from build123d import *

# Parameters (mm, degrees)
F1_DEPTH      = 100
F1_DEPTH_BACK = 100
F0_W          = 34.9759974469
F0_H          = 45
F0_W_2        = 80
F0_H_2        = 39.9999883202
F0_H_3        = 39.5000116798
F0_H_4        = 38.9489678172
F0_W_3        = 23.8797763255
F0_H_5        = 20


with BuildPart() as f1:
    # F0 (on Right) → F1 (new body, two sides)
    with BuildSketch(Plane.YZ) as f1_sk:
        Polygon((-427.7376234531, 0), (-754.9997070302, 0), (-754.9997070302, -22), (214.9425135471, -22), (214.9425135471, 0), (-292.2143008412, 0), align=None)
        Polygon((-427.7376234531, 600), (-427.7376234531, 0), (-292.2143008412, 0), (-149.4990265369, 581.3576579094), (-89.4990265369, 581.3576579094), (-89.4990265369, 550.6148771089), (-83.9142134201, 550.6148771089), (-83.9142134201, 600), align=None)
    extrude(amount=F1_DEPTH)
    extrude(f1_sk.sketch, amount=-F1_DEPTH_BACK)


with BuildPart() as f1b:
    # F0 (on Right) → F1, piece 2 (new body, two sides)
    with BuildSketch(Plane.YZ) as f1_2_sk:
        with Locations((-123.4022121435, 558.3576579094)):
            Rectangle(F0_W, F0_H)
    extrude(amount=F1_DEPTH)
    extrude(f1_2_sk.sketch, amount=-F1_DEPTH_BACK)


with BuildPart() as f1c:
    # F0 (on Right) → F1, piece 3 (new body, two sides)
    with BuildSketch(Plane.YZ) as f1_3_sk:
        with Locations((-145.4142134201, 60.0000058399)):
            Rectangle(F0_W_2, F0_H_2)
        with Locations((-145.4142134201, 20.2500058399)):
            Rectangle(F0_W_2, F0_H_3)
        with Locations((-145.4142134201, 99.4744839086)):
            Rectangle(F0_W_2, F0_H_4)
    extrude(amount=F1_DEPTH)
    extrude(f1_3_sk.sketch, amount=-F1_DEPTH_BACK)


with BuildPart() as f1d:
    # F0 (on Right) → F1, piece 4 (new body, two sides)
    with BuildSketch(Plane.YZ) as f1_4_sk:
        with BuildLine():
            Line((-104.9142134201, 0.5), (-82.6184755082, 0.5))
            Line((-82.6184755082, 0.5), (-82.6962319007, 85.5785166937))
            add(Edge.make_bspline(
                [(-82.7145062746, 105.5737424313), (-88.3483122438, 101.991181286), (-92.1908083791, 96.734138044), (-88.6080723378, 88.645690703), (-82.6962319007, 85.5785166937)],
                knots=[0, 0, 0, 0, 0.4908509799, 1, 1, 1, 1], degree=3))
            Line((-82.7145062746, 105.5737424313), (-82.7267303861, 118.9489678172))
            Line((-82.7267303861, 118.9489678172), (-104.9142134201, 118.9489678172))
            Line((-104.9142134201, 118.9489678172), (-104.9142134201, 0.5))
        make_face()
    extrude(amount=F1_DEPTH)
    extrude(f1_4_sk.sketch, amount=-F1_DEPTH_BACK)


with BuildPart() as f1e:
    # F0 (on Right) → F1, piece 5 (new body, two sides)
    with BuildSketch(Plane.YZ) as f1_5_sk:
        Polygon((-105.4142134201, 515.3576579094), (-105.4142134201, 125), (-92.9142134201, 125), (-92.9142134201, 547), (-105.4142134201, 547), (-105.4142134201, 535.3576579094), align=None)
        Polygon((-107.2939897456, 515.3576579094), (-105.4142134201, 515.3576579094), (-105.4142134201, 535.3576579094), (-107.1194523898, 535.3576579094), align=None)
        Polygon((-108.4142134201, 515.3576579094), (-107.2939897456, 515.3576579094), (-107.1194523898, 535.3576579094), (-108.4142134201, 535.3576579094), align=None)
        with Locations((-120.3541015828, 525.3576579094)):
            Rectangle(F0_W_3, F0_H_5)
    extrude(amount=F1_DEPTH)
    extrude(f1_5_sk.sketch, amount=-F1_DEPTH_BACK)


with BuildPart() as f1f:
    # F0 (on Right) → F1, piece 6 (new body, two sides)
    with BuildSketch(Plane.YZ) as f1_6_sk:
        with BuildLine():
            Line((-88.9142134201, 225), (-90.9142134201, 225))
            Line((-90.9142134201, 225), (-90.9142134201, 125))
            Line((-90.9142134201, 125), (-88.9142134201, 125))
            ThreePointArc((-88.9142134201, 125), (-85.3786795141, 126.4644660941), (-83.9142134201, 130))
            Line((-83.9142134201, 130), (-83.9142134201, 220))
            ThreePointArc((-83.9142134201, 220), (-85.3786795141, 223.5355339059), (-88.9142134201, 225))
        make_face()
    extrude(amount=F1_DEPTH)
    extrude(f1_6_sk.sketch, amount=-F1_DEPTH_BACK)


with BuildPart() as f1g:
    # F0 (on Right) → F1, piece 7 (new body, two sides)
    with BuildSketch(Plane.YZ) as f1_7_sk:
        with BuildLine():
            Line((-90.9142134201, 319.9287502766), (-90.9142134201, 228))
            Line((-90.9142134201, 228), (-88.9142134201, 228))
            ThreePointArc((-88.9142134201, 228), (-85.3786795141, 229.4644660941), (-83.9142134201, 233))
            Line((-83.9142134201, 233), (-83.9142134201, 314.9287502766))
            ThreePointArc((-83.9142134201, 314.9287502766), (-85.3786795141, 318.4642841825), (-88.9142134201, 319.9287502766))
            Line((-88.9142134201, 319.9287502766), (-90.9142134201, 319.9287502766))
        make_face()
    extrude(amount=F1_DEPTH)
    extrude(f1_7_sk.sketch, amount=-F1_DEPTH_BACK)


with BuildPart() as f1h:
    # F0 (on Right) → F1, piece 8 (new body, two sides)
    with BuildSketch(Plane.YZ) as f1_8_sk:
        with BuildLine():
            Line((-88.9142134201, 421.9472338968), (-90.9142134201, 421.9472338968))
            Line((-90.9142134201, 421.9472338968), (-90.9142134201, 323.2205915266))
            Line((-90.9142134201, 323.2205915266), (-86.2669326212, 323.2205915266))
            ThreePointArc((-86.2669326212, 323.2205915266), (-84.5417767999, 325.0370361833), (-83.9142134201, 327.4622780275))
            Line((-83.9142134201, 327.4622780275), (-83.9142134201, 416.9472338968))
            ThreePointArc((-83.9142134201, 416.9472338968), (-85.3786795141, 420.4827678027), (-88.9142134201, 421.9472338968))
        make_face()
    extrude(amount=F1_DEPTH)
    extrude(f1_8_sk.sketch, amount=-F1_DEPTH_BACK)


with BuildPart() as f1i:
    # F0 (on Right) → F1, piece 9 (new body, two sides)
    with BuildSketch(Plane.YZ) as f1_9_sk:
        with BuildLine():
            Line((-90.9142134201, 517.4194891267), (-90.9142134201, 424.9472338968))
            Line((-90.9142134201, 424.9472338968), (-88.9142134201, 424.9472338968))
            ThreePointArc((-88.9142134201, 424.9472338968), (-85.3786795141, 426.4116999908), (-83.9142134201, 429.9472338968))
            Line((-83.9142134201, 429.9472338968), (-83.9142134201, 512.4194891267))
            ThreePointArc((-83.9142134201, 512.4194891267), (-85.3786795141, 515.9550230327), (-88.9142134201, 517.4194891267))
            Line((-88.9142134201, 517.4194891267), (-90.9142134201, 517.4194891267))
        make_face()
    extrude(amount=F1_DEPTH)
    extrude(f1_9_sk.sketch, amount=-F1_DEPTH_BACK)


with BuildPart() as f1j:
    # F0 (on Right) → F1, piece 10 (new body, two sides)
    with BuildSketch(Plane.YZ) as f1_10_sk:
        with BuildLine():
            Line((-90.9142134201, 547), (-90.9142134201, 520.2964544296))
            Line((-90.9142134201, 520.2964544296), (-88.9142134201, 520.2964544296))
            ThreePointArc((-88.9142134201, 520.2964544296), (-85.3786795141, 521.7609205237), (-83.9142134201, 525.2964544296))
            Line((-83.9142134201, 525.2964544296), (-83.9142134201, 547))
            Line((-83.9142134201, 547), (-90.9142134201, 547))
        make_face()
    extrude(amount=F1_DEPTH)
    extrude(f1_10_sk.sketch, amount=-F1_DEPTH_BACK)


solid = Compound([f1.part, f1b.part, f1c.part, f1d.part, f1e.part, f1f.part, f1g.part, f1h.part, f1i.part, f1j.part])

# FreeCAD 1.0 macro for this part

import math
import FreeCAD as App
import Part
import Sketcher
Q = App.Units.Quantity


def add_polygon(sketch, points):
    """Adds a closed chain of lines whose ends are joined by coincident constraints."""
    first, n = sketch.GeometryCount, len(points)
    for a, b in zip(points, points[1:] + points[:1]):
        sketch.addGeometry(Part.LineSegment(App.Vector(*a, 0), App.Vector(*b, 0)), False)
    for i in range(n):
        sketch.addConstraint(Sketcher.Constraint("Coincident", first + i, 2, first + (i + 1) % n, 1))

doc = App.newDocument("Part")
body = doc.addObject("PartDesign::Body", "Body")

# Sketch on YZ plane
sketch1 = doc.addObject("Sketcher::SketchObject", "Sketch")
body.addObject(sketch1)
sketch1.AttachmentSupport = (doc.YZ_Plane, [""])
sketch1.MapMode = "FlatFace"
add_polygon(sketch1, [(-755, 0), (-755, -22), (215, -22), (215, 0), (-292, 0), (-149, 581), (-89, 581), (-89, 551), (-84, 551), (-84, 600), (-428, 600), (-428, 0)])  # lines 0-11
sketch1.addConstraint(Sketcher.Constraint("Vertical", 0))
sketch1.addConstraint(Sketcher.Constraint("Horizontal", 1))
sketch1.addConstraint(Sketcher.Constraint("Vertical", 2))
sketch1.addConstraint(Sketcher.Constraint("Horizontal", 3))
sketch1.addConstraint(Sketcher.Constraint("Horizontal", 5))
sketch1.addConstraint(Sketcher.Constraint("Vertical", 6))
sketch1.addConstraint(Sketcher.Constraint("Horizontal", 7))
sketch1.addConstraint(Sketcher.Constraint("Vertical", 8))
sketch1.addConstraint(Sketcher.Constraint("Horizontal", 9))
sketch1.addConstraint(Sketcher.Constraint("Vertical", 10))
sketch1.addConstraint(Sketcher.Constraint("Horizontal", 11))
sketch1.addConstraint(Sketcher.Constraint("PointOnObject", 2, 2, -1))
sketch1.addConstraint(Sketcher.Constraint("PointOnObject", 10, 2, -1))
sketch1.addConstraint(Sketcher.Constraint("DistanceX", 5, 1, 5, 2, Q("60 mm")))
sketch1.addConstraint(Sketcher.Constraint("DistanceY", 0, 2, 0, 1, Q("22 mm")))
sketch1.addConstraint(Sketcher.Constraint("DistanceY", 10, 2, 10, 1, Q("600 mm")))
sketch1.addConstraint(Sketcher.Constraint("DistanceX", 1, 1, 1, 2, Q("969.942221 mm")))
sketch1.addConstraint(Sketcher.Constraint("DistanceX", 9, 2, 9, 1, Q("343.82341 mm")))
sketch1.addConstraint(Sketcher.Constraint("DistanceY", 6, 2, 6, 1, Q("30.742781 mm")))
sketch1.addConstraint(Sketcher.Constraint("DistanceX", 3, 2, -1, 1, Q("292.214301 mm")))
sketch1.addConstraint(Sketcher.Constraint("DistanceX", 3, 2, 3, 1, Q("507.156814 mm")))
sketch1.addConstraint(Sketcher.Constraint("DistanceX", 7, 1, 7, 2, Q("5.584813 mm")))
sketch1.addConstraint(Sketcher.Constraint("DistanceX", 11, 2, 11, 1, Q("327.262084 mm")))
sketch1.addConstraint(Sketcher.Constraint("DistanceY", 8, 1, 8, 2, Q("49.385123 mm")))
pad1 = doc.addObject("PartDesign::Pad", "Pad")
body.addObject(pad1)
pad1.Profile = sketch1
pad1.Type = "TwoLengths"
pad1.Length = 100
pad1.Length2 = 100
body2 = doc.addObject("PartDesign::Body", "Body001")

# Sketch on YZ plane
sketch2 = doc.addObject("Sketcher::SketchObject", "Sketch001")
body2.addObject(sketch2)
sketch2.AttachmentSupport = (doc.getObject("YZ_Plane001"), [""])
sketch2.MapMode = "FlatFace"
add_polygon(sketch2, [(-141, 581), (-141, 536), (-106, 536), (-106, 581)])  # lines 0-3
sketch2.addConstraint(Sketcher.Constraint("Vertical", 0))
sketch2.addConstraint(Sketcher.Constraint("Horizontal", 1))
sketch2.addConstraint(Sketcher.Constraint("Vertical", 2))
sketch2.addConstraint(Sketcher.Constraint("Horizontal", 3))
sketch2.addConstraint(Sketcher.Constraint("DistanceY", 0, 2, 0, 1, Q("45 mm")))
sketch2.addConstraint(Sketcher.Constraint("DistanceX", 1, 1, 1, 2, Q("34.975997 mm")))
sketch2.addConstraint(Sketcher.Constraint("DistanceX", 0, 2, -1, 1, Q("140.890211 mm")))
sketch2.addConstraint(Sketcher.Constraint("DistanceY", -1, 1, 0, 2, Q("535.857658 mm")))
pad2 = doc.addObject("PartDesign::Pad", "Pad001")
body2.addObject(pad2)
pad2.Profile = sketch2
pad2.Type = "TwoLengths"
pad2.Length = 100
pad2.Length2 = 100
body3 = doc.addObject("PartDesign::Body", "Body002")

# Sketch on YZ plane
sketch3 = doc.addObject("Sketcher::SketchObject", "Sketch002")
body3.addObject(sketch3)
sketch3.AttachmentSupport = (doc.getObject("YZ_Plane002"), [""])
sketch3.MapMode = "FlatFace"
add_polygon(sketch3, [(-185, 0), (-105, 0), (-105, 119), (-185, 119)])  # lines 0-3
sketch3.addConstraint(Sketcher.Constraint("Horizontal", 0))
sketch3.addConstraint(Sketcher.Constraint("Vertical", 1))
sketch3.addConstraint(Sketcher.Constraint("Horizontal", 2))
sketch3.addConstraint(Sketcher.Constraint("Vertical", 3))
sketch3.addConstraint(Sketcher.Constraint("DistanceX", 0, 1, 0, 2, Q("80 mm")))
sketch3.addConstraint(Sketcher.Constraint("DistanceY", -1, 1, 0, 2, Q("0.5 mm")))
sketch3.addConstraint(Sketcher.Constraint("DistanceY", 1, 1, 1, 2, Q("118.448968 mm")))
sketch3.addConstraint(Sketcher.Constraint("DistanceX", 0, 2, -1, 1, Q("105.414213 mm")))
pad3 = doc.addObject("PartDesign::Pad", "Pad002")
body3.addObject(pad3)
pad3.Profile = sketch3
pad3.Type = "TwoLengths"
pad3.Length = 100
pad3.Length2 = 100
body4 = doc.addObject("PartDesign::Body", "Body003")

# Sketch on YZ plane
sketch4 = doc.addObject("Sketcher::SketchObject", "Sketch003")
body4.addObject(sketch4)
sketch4.AttachmentSupport = (doc.getObject("YZ_Plane003"), [""])
sketch4.MapMode = "FlatFace"
sketch4.addGeometry(Part.LineSegment(App.Vector(-104.914213, 0.5, 0), App.Vector(-82.618476, 0.5, 0)), False)
sketch4.addGeometry(Part.LineSegment(App.Vector(-82.618476, 0.5, 0), App.Vector(-82.696232, 85.578517, 0)), False)
sketch4.addGeometry(Part.BSplineCurve([App.Vector(-82.714506, 105.573742, 0), App.Vector(-88.348312, 101.991181, 0), App.Vector(-92.190808, 96.734138, 0), App.Vector(-88.608072, 88.645691, 0), App.Vector(-82.696232, 85.578517, 0)], [4, 1, 4], [0, 0.49085098, 1], False, 3, [1, 1, 1, 1, 1], False), False)
sketch4.addGeometry(Part.LineSegment(App.Vector(-82.714506, 105.573742, 0), App.Vector(-82.72673, 118.948968, 0)), False)
sketch4.addGeometry(Part.LineSegment(App.Vector(-82.72673, 118.948968, 0), App.Vector(-104.914213, 118.948968, 0)), False)
sketch4.addGeometry(Part.LineSegment(App.Vector(-104.914213, 118.948968, 0), App.Vector(-104.914213, 0.5, 0)), False)
sketch4.addConstraint(Sketcher.Constraint("Block", 2))
sketch4.addConstraint(Sketcher.Constraint("Coincident", 0, 2, 1, 1))
sketch4.addConstraint(Sketcher.Constraint("Coincident", 1, 2, 2, 2))
sketch4.addConstraint(Sketcher.Constraint("Coincident", 2, 1, 3, 1))
sketch4.addConstraint(Sketcher.Constraint("Coincident", 3, 2, 4, 1))
sketch4.addConstraint(Sketcher.Constraint("Coincident", 4, 2, 5, 1))
sketch4.addConstraint(Sketcher.Constraint("Coincident", 5, 2, 0, 1))
sketch4.addConstraint(Sketcher.Constraint("Horizontal", 0))
sketch4.addConstraint(Sketcher.Constraint("Horizontal", 4))
sketch4.addConstraint(Sketcher.Constraint("Vertical", 5))
sketch4.addConstraint(Sketcher.Constraint("Parallel", 1, 3))
sketch4.addConstraint(Sketcher.Constraint("DistanceY", -1, 1, 0, 2, Q("0.5 mm")))
sketch4.addConstraint(Sketcher.Constraint("DistanceX", 3, 2, 1, 2, Q("0.030498 mm")))
sketch4.addConstraint(Sketcher.Constraint("Distance", 3, Q("13.375231 mm")))
sketch4.addConstraint(Sketcher.Constraint("DistanceX", 0, 1, 0, 2, Q("22.295738 mm")))
pad4 = doc.addObject("PartDesign::Pad", "Pad003")
body4.addObject(pad4)
pad4.Profile = sketch4
pad4.Type = "TwoLengths"
pad4.Length = 100
pad4.Length2 = 100
body5 = doc.addObject("PartDesign::Body", "Body004")

# Sketch on YZ plane
sketch5 = doc.addObject("Sketcher::SketchObject", "Sketch004")
body5.addObject(sketch5)
sketch5.AttachmentSupport = (doc.getObject("YZ_Plane004"), [""])
sketch5.MapMode = "FlatFace"
add_polygon(sketch5, [(-105, 125), (-93, 125), (-93, 547), (-105, 547), (-105, 535), (-132, 535), (-132, 515), (-105, 515)])  # lines 0-7
sketch5.addConstraint(Sketcher.Constraint("Horizontal", 0))
sketch5.addConstraint(Sketcher.Constraint("Vertical", 1))
sketch5.addConstraint(Sketcher.Constraint("Horizontal", 2))
sketch5.addConstraint(Sketcher.Constraint("Vertical", 3))
sketch5.addConstraint(Sketcher.Constraint("Horizontal", 4))
sketch5.addConstraint(Sketcher.Constraint("Vertical", 5))
sketch5.addConstraint(Sketcher.Constraint("Horizontal", 6))
sketch5.addConstraint(Sketcher.Constraint("Vertical", 7))
sketch5.addConstraint(Sketcher.Constraint("Vertical", 3, 2, 6, 2))
sketch5.addConstraint(Sketcher.Constraint("DistanceY", 1, 1, 1, 2, Q("422 mm")))
sketch5.addConstraint(Sketcher.Constraint("DistanceY", 5, 2, 5, 1, Q("20 mm")))
sketch5.addConstraint(Sketcher.Constraint("DistanceX", 0, 1, 0, 2, Q("12.5 mm")))
sketch5.addConstraint(Sketcher.Constraint("DistanceY", -1, 1, 0, 2, Q("125 mm")))
sketch5.addConstraint(Sketcher.Constraint("DistanceX", 4, 2, 4, 1, Q("26.879776 mm")))
sketch5.addConstraint(Sketcher.Constraint("DistanceY", 3, 2, 3, 1, Q("11.642342 mm")))
sketch5.addConstraint(Sketcher.Constraint("DistanceX", 4, 2, -1, 1, Q("132.29399 mm")))
pad5 = doc.addObject("PartDesign::Pad", "Pad004")
body5.addObject(pad5)
pad5.Profile = sketch5
pad5.Type = "TwoLengths"
pad5.Length = 100
pad5.Length2 = 100
body6 = doc.addObject("PartDesign::Body", "Body005")

# Sketch on YZ plane
sketch6 = doc.addObject("Sketcher::SketchObject", "Sketch005")
body6.addObject(sketch6)
sketch6.AttachmentSupport = (doc.getObject("YZ_Plane005"), [""])
sketch6.MapMode = "FlatFace"
sketch6.addGeometry(Part.LineSegment(App.Vector(-88.9, 225, 0), App.Vector(-90.9, 225, 0)), False)
sketch6.addGeometry(Part.LineSegment(App.Vector(-90.9, 225, 0), App.Vector(-90.9, 125, 0)), False)
sketch6.addGeometry(Part.LineSegment(App.Vector(-90.9, 125, 0), App.Vector(-88.9, 125, 0)), False)
sketch6.addGeometry(Part.ArcOfCircle(Part.Circle(App.Vector(-88.9, 130, 0), App.Vector(0, 0, 1), 5), math.radians(-90), math.radians(0)), False)
sketch6.addGeometry(Part.LineSegment(App.Vector(-83.9, 130, 0), App.Vector(-83.9, 220, 0)), False)
sketch6.addGeometry(Part.ArcOfCircle(Part.Circle(App.Vector(-88.9, 220, 0), App.Vector(0, 0, 1), 5), math.radians(0), math.radians(90)), False)
sketch6.addConstraint(Sketcher.Constraint("Coincident", 0, 2, 1, 1))
sketch6.addConstraint(Sketcher.Constraint("Coincident", 1, 2, 2, 1))
sketch6.addConstraint(Sketcher.Constraint("Tangent", 2, 2, 3, 1))
sketch6.addConstraint(Sketcher.Constraint("Tangent", 3, 2, 4, 1))
sketch6.addConstraint(Sketcher.Constraint("Tangent", 4, 2, 5, 1))
sketch6.addConstraint(Sketcher.Constraint("Tangent", 5, 2, 0, 1))
sketch6.addConstraint(Sketcher.Constraint("Horizontal", 0))
sketch6.addConstraint(Sketcher.Constraint("Vertical", 1))
sketch6.addConstraint(Sketcher.Constraint("Horizontal", 2))
sketch6.addConstraint(Sketcher.Constraint("Vertical", 4))
sketch6.addConstraint(Sketcher.Constraint("Equal", 3, 5))
sketch6.addConstraint(Sketcher.Constraint("Radius", 3, Q("5 mm")))
sketch6.addConstraint(Sketcher.Constraint("DistanceX", 0, 2, 0, 1, Q("2 mm")))
sketch6.addConstraint(Sketcher.Constraint("DistanceY", 1, 2, 1, 1, Q("100 mm")))
sketch6.addConstraint(Sketcher.Constraint("DistanceY", -1, 1, 3, 3, Q("130 mm")))
sketch6.addConstraint(Sketcher.Constraint("DistanceX", 3, 3, -1, 1, Q("88.914213 mm")))
pad6 = doc.addObject("PartDesign::Pad", "Pad005")
body6.addObject(pad6)
pad6.Profile = sketch6
pad6.Type = "TwoLengths"
pad6.Length = 100
pad6.Length2 = 100
body7 = doc.addObject("PartDesign::Body", "Body006")

# Sketch on YZ plane
sketch7 = doc.addObject("Sketcher::SketchObject", "Sketch006")
body7.addObject(sketch7)
sketch7.AttachmentSupport = (doc.getObject("YZ_Plane006"), [""])
sketch7.MapMode = "FlatFace"
sketch7.addGeometry(Part.LineSegment(App.Vector(-90.9, 319.9, 0), App.Vector(-90.9, 228, 0)), False)
sketch7.addGeometry(Part.LineSegment(App.Vector(-90.9, 228, 0), App.Vector(-88.9, 228, 0)), False)
sketch7.addGeometry(Part.ArcOfCircle(Part.Circle(App.Vector(-88.9, 233, 0), App.Vector(0, 0, 1), 5), math.radians(-90), math.radians(0)), False)
sketch7.addGeometry(Part.LineSegment(App.Vector(-83.9, 233, 0), App.Vector(-83.9, 314.9, 0)), False)
sketch7.addGeometry(Part.ArcOfCircle(Part.Circle(App.Vector(-88.9, 314.9, 0), App.Vector(0, 0, 1), 5), math.radians(0), math.radians(90)), False)
sketch7.addGeometry(Part.LineSegment(App.Vector(-88.9, 319.9, 0), App.Vector(-90.9, 319.9, 0)), False)
sketch7.addConstraint(Sketcher.Constraint("Coincident", 0, 2, 1, 1))
sketch7.addConstraint(Sketcher.Constraint("Tangent", 1, 2, 2, 1))
sketch7.addConstraint(Sketcher.Constraint("Tangent", 2, 2, 3, 1))
sketch7.addConstraint(Sketcher.Constraint("Tangent", 3, 2, 4, 1))
sketch7.addConstraint(Sketcher.Constraint("Tangent", 4, 2, 5, 1))
sketch7.addConstraint(Sketcher.Constraint("Coincident", 5, 2, 0, 1))
sketch7.addConstraint(Sketcher.Constraint("Vertical", 0))
sketch7.addConstraint(Sketcher.Constraint("Horizontal", 1))
sketch7.addConstraint(Sketcher.Constraint("Vertical", 3))
sketch7.addConstraint(Sketcher.Constraint("Horizontal", 5))
sketch7.addConstraint(Sketcher.Constraint("Equal", 2, 4))
sketch7.addConstraint(Sketcher.Constraint("Radius", 2, Q("5 mm")))
sketch7.addConstraint(Sketcher.Constraint("DistanceX", 1, 1, 1, 2, Q("2 mm")))
sketch7.addConstraint(Sketcher.Constraint("DistanceY", -1, 1, 2, 3, Q("233 mm")))
sketch7.addConstraint(Sketcher.Constraint("DistanceY", 0, 2, 0, 1, Q("91.92875 mm")))
sketch7.addConstraint(Sketcher.Constraint("DistanceX", 2, 3, -1, 1, Q("88.914213 mm")))
pad7 = doc.addObject("PartDesign::Pad", "Pad006")
body7.addObject(pad7)
pad7.Profile = sketch7
pad7.Type = "TwoLengths"
pad7.Length = 100
pad7.Length2 = 100
body8 = doc.addObject("PartDesign::Body", "Body007")

# Sketch on YZ plane
sketch8 = doc.addObject("Sketcher::SketchObject", "Sketch007")
body8.addObject(sketch8)
sketch8.AttachmentSupport = (doc.getObject("YZ_Plane007"), [""])
sketch8.MapMode = "FlatFace"
sketch8.addGeometry(Part.LineSegment(App.Vector(-88.9, 421.9, 0), App.Vector(-90.9, 421.9, 0)), False)
sketch8.addGeometry(Part.LineSegment(App.Vector(-90.9, 421.9, 0), App.Vector(-90.9, 323.2, 0)), False)
sketch8.addGeometry(Part.LineSegment(App.Vector(-90.9, 323.2, 0), App.Vector(-86.3, 323.2, 0)), False)
sketch8.addGeometry(Part.ArcOfCircle(Part.Circle(App.Vector(-88.9, 327.5, 0), App.Vector(0, 0, 1), 5), math.radians(-58), math.radians(0)), False)
sketch8.addGeometry(Part.LineSegment(App.Vector(-83.9, 327.5, 0), App.Vector(-83.9, 416.9, 0)), False)
sketch8.addGeometry(Part.ArcOfCircle(Part.Circle(App.Vector(-88.9, 416.9, 0), App.Vector(0, 0, 1), 5), math.radians(0), math.radians(90)), False)
sketch8.addConstraint(Sketcher.Constraint("Coincident", 0, 2, 1, 1))
sketch8.addConstraint(Sketcher.Constraint("Coincident", 1, 2, 2, 1))
sketch8.addConstraint(Sketcher.Constraint("Coincident", 2, 2, 3, 1))
sketch8.addConstraint(Sketcher.Constraint("Tangent", 3, 2, 4, 1))
sketch8.addConstraint(Sketcher.Constraint("Tangent", 4, 2, 5, 1))
sketch8.addConstraint(Sketcher.Constraint("Tangent", 5, 2, 0, 1))
sketch8.addConstraint(Sketcher.Constraint("Horizontal", 0))
sketch8.addConstraint(Sketcher.Constraint("Vertical", 1))
sketch8.addConstraint(Sketcher.Constraint("Horizontal", 2))
sketch8.addConstraint(Sketcher.Constraint("Vertical", 4))
sketch8.addConstraint(Sketcher.Constraint("Equal", 3, 5))
sketch8.addConstraint(Sketcher.Constraint("Radius", 3, Q("5 mm")))
sketch8.addConstraint(Sketcher.Constraint("DistanceX", 0, 2, 0, 1, Q("2 mm")))
sketch8.addConstraint(Sketcher.Constraint("DistanceX", 2, 1, 2, 2, Q("4.647281 mm")))
sketch8.addConstraint(Sketcher.Constraint("DistanceY", 1, 2, 1, 1, Q("98.726642 mm")))
sketch8.addConstraint(Sketcher.Constraint("DistanceY", -1, 1, 3, 3, Q("327.462278 mm")))
sketch8.addConstraint(Sketcher.Constraint("DistanceX", 3, 3, -1, 1, Q("88.914213 mm")))
pad8 = doc.addObject("PartDesign::Pad", "Pad007")
body8.addObject(pad8)
pad8.Profile = sketch8
pad8.Type = "TwoLengths"
pad8.Length = 100
pad8.Length2 = 100
body9 = doc.addObject("PartDesign::Body", "Body008")

# Sketch on YZ plane
sketch9 = doc.addObject("Sketcher::SketchObject", "Sketch008")
body9.addObject(sketch9)
sketch9.AttachmentSupport = (doc.getObject("YZ_Plane008"), [""])
sketch9.MapMode = "FlatFace"
sketch9.addGeometry(Part.LineSegment(App.Vector(-90.9, 517.4, 0), App.Vector(-90.9, 424.9, 0)), False)
sketch9.addGeometry(Part.LineSegment(App.Vector(-90.9, 424.9, 0), App.Vector(-88.9, 424.9, 0)), False)
sketch9.addGeometry(Part.ArcOfCircle(Part.Circle(App.Vector(-88.9, 429.9, 0), App.Vector(0, 0, 1), 5), math.radians(-90), math.radians(0)), False)
sketch9.addGeometry(Part.LineSegment(App.Vector(-83.9, 429.9, 0), App.Vector(-83.9, 512.4, 0)), False)
sketch9.addGeometry(Part.ArcOfCircle(Part.Circle(App.Vector(-88.9, 512.4, 0), App.Vector(0, 0, 1), 5), math.radians(0), math.radians(90)), False)
sketch9.addGeometry(Part.LineSegment(App.Vector(-88.9, 517.4, 0), App.Vector(-90.9, 517.4, 0)), False)
sketch9.addConstraint(Sketcher.Constraint("Coincident", 0, 2, 1, 1))
sketch9.addConstraint(Sketcher.Constraint("Tangent", 1, 2, 2, 1))
sketch9.addConstraint(Sketcher.Constraint("Tangent", 2, 2, 3, 1))
sketch9.addConstraint(Sketcher.Constraint("Tangent", 3, 2, 4, 1))
sketch9.addConstraint(Sketcher.Constraint("Tangent", 4, 2, 5, 1))
sketch9.addConstraint(Sketcher.Constraint("Coincident", 5, 2, 0, 1))
sketch9.addConstraint(Sketcher.Constraint("Vertical", 0))
sketch9.addConstraint(Sketcher.Constraint("Horizontal", 1))
sketch9.addConstraint(Sketcher.Constraint("Vertical", 3))
sketch9.addConstraint(Sketcher.Constraint("Horizontal", 5))
sketch9.addConstraint(Sketcher.Constraint("Equal", 2, 4))
sketch9.addConstraint(Sketcher.Constraint("Radius", 2, Q("5 mm")))
sketch9.addConstraint(Sketcher.Constraint("DistanceX", 1, 1, 1, 2, Q("2 mm")))
sketch9.addConstraint(Sketcher.Constraint("DistanceY", 0, 2, 0, 1, Q("92.472255 mm")))
sketch9.addConstraint(Sketcher.Constraint("DistanceY", -1, 1, 4, 3, Q("512.419489 mm")))
sketch9.addConstraint(Sketcher.Constraint("DistanceX", 2, 3, -1, 1, Q("88.914213 mm")))
pad9 = doc.addObject("PartDesign::Pad", "Pad008")
body9.addObject(pad9)
pad9.Profile = sketch9
pad9.Type = "TwoLengths"
pad9.Length = 100
pad9.Length2 = 100
body10 = doc.addObject("PartDesign::Body", "Body009")

# Sketch on YZ plane
sketch10 = doc.addObject("Sketcher::SketchObject", "Sketch009")
body10.addObject(sketch10)
sketch10.AttachmentSupport = (doc.getObject("YZ_Plane009"), [""])
sketch10.MapMode = "FlatFace"
sketch10.addGeometry(Part.LineSegment(App.Vector(-90.9, 547, 0), App.Vector(-90.9, 520.3, 0)), False)
sketch10.addGeometry(Part.LineSegment(App.Vector(-90.9, 520.3, 0), App.Vector(-88.9, 520.3, 0)), False)
sketch10.addGeometry(Part.ArcOfCircle(Part.Circle(App.Vector(-88.9, 525.3, 0), App.Vector(0, 0, 1), 5), math.radians(-90), math.radians(0)), False)
sketch10.addGeometry(Part.LineSegment(App.Vector(-83.9, 525.3, 0), App.Vector(-83.9, 547, 0)), False)
sketch10.addGeometry(Part.LineSegment(App.Vector(-83.9, 547, 0), App.Vector(-90.9, 547, 0)), False)
sketch10.addConstraint(Sketcher.Constraint("Coincident", 0, 2, 1, 1))
sketch10.addConstraint(Sketcher.Constraint("Tangent", 1, 2, 2, 1))
sketch10.addConstraint(Sketcher.Constraint("Tangent", 2, 2, 3, 1))
sketch10.addConstraint(Sketcher.Constraint("Coincident", 3, 2, 4, 1))
sketch10.addConstraint(Sketcher.Constraint("Coincident", 4, 2, 0, 1))
sketch10.addConstraint(Sketcher.Constraint("Vertical", 0))
sketch10.addConstraint(Sketcher.Constraint("Horizontal", 1))
sketch10.addConstraint(Sketcher.Constraint("Vertical", 3))
sketch10.addConstraint(Sketcher.Constraint("Horizontal", 4))
sketch10.addConstraint(Sketcher.Constraint("Radius", 2, Q("5 mm")))
sketch10.addConstraint(Sketcher.Constraint("DistanceX", 1, 1, 1, 2, Q("2 mm")))
sketch10.addConstraint(Sketcher.Constraint("DistanceY", -1, 1, 3, 2, Q("547 mm")))
sketch10.addConstraint(Sketcher.Constraint("DistanceY", 0, 2, 0, 1, Q("26.703546 mm")))
sketch10.addConstraint(Sketcher.Constraint("DistanceX", 2, 3, -1, 1, Q("88.914213 mm")))
pad10 = doc.addObject("PartDesign::Pad", "Pad009")
body10.addObject(pad10)
pad10.Profile = sketch10
pad10.Type = "TwoLengths"
pad10.Length = 100
pad10.Length2 = 100

doc.recompute()
